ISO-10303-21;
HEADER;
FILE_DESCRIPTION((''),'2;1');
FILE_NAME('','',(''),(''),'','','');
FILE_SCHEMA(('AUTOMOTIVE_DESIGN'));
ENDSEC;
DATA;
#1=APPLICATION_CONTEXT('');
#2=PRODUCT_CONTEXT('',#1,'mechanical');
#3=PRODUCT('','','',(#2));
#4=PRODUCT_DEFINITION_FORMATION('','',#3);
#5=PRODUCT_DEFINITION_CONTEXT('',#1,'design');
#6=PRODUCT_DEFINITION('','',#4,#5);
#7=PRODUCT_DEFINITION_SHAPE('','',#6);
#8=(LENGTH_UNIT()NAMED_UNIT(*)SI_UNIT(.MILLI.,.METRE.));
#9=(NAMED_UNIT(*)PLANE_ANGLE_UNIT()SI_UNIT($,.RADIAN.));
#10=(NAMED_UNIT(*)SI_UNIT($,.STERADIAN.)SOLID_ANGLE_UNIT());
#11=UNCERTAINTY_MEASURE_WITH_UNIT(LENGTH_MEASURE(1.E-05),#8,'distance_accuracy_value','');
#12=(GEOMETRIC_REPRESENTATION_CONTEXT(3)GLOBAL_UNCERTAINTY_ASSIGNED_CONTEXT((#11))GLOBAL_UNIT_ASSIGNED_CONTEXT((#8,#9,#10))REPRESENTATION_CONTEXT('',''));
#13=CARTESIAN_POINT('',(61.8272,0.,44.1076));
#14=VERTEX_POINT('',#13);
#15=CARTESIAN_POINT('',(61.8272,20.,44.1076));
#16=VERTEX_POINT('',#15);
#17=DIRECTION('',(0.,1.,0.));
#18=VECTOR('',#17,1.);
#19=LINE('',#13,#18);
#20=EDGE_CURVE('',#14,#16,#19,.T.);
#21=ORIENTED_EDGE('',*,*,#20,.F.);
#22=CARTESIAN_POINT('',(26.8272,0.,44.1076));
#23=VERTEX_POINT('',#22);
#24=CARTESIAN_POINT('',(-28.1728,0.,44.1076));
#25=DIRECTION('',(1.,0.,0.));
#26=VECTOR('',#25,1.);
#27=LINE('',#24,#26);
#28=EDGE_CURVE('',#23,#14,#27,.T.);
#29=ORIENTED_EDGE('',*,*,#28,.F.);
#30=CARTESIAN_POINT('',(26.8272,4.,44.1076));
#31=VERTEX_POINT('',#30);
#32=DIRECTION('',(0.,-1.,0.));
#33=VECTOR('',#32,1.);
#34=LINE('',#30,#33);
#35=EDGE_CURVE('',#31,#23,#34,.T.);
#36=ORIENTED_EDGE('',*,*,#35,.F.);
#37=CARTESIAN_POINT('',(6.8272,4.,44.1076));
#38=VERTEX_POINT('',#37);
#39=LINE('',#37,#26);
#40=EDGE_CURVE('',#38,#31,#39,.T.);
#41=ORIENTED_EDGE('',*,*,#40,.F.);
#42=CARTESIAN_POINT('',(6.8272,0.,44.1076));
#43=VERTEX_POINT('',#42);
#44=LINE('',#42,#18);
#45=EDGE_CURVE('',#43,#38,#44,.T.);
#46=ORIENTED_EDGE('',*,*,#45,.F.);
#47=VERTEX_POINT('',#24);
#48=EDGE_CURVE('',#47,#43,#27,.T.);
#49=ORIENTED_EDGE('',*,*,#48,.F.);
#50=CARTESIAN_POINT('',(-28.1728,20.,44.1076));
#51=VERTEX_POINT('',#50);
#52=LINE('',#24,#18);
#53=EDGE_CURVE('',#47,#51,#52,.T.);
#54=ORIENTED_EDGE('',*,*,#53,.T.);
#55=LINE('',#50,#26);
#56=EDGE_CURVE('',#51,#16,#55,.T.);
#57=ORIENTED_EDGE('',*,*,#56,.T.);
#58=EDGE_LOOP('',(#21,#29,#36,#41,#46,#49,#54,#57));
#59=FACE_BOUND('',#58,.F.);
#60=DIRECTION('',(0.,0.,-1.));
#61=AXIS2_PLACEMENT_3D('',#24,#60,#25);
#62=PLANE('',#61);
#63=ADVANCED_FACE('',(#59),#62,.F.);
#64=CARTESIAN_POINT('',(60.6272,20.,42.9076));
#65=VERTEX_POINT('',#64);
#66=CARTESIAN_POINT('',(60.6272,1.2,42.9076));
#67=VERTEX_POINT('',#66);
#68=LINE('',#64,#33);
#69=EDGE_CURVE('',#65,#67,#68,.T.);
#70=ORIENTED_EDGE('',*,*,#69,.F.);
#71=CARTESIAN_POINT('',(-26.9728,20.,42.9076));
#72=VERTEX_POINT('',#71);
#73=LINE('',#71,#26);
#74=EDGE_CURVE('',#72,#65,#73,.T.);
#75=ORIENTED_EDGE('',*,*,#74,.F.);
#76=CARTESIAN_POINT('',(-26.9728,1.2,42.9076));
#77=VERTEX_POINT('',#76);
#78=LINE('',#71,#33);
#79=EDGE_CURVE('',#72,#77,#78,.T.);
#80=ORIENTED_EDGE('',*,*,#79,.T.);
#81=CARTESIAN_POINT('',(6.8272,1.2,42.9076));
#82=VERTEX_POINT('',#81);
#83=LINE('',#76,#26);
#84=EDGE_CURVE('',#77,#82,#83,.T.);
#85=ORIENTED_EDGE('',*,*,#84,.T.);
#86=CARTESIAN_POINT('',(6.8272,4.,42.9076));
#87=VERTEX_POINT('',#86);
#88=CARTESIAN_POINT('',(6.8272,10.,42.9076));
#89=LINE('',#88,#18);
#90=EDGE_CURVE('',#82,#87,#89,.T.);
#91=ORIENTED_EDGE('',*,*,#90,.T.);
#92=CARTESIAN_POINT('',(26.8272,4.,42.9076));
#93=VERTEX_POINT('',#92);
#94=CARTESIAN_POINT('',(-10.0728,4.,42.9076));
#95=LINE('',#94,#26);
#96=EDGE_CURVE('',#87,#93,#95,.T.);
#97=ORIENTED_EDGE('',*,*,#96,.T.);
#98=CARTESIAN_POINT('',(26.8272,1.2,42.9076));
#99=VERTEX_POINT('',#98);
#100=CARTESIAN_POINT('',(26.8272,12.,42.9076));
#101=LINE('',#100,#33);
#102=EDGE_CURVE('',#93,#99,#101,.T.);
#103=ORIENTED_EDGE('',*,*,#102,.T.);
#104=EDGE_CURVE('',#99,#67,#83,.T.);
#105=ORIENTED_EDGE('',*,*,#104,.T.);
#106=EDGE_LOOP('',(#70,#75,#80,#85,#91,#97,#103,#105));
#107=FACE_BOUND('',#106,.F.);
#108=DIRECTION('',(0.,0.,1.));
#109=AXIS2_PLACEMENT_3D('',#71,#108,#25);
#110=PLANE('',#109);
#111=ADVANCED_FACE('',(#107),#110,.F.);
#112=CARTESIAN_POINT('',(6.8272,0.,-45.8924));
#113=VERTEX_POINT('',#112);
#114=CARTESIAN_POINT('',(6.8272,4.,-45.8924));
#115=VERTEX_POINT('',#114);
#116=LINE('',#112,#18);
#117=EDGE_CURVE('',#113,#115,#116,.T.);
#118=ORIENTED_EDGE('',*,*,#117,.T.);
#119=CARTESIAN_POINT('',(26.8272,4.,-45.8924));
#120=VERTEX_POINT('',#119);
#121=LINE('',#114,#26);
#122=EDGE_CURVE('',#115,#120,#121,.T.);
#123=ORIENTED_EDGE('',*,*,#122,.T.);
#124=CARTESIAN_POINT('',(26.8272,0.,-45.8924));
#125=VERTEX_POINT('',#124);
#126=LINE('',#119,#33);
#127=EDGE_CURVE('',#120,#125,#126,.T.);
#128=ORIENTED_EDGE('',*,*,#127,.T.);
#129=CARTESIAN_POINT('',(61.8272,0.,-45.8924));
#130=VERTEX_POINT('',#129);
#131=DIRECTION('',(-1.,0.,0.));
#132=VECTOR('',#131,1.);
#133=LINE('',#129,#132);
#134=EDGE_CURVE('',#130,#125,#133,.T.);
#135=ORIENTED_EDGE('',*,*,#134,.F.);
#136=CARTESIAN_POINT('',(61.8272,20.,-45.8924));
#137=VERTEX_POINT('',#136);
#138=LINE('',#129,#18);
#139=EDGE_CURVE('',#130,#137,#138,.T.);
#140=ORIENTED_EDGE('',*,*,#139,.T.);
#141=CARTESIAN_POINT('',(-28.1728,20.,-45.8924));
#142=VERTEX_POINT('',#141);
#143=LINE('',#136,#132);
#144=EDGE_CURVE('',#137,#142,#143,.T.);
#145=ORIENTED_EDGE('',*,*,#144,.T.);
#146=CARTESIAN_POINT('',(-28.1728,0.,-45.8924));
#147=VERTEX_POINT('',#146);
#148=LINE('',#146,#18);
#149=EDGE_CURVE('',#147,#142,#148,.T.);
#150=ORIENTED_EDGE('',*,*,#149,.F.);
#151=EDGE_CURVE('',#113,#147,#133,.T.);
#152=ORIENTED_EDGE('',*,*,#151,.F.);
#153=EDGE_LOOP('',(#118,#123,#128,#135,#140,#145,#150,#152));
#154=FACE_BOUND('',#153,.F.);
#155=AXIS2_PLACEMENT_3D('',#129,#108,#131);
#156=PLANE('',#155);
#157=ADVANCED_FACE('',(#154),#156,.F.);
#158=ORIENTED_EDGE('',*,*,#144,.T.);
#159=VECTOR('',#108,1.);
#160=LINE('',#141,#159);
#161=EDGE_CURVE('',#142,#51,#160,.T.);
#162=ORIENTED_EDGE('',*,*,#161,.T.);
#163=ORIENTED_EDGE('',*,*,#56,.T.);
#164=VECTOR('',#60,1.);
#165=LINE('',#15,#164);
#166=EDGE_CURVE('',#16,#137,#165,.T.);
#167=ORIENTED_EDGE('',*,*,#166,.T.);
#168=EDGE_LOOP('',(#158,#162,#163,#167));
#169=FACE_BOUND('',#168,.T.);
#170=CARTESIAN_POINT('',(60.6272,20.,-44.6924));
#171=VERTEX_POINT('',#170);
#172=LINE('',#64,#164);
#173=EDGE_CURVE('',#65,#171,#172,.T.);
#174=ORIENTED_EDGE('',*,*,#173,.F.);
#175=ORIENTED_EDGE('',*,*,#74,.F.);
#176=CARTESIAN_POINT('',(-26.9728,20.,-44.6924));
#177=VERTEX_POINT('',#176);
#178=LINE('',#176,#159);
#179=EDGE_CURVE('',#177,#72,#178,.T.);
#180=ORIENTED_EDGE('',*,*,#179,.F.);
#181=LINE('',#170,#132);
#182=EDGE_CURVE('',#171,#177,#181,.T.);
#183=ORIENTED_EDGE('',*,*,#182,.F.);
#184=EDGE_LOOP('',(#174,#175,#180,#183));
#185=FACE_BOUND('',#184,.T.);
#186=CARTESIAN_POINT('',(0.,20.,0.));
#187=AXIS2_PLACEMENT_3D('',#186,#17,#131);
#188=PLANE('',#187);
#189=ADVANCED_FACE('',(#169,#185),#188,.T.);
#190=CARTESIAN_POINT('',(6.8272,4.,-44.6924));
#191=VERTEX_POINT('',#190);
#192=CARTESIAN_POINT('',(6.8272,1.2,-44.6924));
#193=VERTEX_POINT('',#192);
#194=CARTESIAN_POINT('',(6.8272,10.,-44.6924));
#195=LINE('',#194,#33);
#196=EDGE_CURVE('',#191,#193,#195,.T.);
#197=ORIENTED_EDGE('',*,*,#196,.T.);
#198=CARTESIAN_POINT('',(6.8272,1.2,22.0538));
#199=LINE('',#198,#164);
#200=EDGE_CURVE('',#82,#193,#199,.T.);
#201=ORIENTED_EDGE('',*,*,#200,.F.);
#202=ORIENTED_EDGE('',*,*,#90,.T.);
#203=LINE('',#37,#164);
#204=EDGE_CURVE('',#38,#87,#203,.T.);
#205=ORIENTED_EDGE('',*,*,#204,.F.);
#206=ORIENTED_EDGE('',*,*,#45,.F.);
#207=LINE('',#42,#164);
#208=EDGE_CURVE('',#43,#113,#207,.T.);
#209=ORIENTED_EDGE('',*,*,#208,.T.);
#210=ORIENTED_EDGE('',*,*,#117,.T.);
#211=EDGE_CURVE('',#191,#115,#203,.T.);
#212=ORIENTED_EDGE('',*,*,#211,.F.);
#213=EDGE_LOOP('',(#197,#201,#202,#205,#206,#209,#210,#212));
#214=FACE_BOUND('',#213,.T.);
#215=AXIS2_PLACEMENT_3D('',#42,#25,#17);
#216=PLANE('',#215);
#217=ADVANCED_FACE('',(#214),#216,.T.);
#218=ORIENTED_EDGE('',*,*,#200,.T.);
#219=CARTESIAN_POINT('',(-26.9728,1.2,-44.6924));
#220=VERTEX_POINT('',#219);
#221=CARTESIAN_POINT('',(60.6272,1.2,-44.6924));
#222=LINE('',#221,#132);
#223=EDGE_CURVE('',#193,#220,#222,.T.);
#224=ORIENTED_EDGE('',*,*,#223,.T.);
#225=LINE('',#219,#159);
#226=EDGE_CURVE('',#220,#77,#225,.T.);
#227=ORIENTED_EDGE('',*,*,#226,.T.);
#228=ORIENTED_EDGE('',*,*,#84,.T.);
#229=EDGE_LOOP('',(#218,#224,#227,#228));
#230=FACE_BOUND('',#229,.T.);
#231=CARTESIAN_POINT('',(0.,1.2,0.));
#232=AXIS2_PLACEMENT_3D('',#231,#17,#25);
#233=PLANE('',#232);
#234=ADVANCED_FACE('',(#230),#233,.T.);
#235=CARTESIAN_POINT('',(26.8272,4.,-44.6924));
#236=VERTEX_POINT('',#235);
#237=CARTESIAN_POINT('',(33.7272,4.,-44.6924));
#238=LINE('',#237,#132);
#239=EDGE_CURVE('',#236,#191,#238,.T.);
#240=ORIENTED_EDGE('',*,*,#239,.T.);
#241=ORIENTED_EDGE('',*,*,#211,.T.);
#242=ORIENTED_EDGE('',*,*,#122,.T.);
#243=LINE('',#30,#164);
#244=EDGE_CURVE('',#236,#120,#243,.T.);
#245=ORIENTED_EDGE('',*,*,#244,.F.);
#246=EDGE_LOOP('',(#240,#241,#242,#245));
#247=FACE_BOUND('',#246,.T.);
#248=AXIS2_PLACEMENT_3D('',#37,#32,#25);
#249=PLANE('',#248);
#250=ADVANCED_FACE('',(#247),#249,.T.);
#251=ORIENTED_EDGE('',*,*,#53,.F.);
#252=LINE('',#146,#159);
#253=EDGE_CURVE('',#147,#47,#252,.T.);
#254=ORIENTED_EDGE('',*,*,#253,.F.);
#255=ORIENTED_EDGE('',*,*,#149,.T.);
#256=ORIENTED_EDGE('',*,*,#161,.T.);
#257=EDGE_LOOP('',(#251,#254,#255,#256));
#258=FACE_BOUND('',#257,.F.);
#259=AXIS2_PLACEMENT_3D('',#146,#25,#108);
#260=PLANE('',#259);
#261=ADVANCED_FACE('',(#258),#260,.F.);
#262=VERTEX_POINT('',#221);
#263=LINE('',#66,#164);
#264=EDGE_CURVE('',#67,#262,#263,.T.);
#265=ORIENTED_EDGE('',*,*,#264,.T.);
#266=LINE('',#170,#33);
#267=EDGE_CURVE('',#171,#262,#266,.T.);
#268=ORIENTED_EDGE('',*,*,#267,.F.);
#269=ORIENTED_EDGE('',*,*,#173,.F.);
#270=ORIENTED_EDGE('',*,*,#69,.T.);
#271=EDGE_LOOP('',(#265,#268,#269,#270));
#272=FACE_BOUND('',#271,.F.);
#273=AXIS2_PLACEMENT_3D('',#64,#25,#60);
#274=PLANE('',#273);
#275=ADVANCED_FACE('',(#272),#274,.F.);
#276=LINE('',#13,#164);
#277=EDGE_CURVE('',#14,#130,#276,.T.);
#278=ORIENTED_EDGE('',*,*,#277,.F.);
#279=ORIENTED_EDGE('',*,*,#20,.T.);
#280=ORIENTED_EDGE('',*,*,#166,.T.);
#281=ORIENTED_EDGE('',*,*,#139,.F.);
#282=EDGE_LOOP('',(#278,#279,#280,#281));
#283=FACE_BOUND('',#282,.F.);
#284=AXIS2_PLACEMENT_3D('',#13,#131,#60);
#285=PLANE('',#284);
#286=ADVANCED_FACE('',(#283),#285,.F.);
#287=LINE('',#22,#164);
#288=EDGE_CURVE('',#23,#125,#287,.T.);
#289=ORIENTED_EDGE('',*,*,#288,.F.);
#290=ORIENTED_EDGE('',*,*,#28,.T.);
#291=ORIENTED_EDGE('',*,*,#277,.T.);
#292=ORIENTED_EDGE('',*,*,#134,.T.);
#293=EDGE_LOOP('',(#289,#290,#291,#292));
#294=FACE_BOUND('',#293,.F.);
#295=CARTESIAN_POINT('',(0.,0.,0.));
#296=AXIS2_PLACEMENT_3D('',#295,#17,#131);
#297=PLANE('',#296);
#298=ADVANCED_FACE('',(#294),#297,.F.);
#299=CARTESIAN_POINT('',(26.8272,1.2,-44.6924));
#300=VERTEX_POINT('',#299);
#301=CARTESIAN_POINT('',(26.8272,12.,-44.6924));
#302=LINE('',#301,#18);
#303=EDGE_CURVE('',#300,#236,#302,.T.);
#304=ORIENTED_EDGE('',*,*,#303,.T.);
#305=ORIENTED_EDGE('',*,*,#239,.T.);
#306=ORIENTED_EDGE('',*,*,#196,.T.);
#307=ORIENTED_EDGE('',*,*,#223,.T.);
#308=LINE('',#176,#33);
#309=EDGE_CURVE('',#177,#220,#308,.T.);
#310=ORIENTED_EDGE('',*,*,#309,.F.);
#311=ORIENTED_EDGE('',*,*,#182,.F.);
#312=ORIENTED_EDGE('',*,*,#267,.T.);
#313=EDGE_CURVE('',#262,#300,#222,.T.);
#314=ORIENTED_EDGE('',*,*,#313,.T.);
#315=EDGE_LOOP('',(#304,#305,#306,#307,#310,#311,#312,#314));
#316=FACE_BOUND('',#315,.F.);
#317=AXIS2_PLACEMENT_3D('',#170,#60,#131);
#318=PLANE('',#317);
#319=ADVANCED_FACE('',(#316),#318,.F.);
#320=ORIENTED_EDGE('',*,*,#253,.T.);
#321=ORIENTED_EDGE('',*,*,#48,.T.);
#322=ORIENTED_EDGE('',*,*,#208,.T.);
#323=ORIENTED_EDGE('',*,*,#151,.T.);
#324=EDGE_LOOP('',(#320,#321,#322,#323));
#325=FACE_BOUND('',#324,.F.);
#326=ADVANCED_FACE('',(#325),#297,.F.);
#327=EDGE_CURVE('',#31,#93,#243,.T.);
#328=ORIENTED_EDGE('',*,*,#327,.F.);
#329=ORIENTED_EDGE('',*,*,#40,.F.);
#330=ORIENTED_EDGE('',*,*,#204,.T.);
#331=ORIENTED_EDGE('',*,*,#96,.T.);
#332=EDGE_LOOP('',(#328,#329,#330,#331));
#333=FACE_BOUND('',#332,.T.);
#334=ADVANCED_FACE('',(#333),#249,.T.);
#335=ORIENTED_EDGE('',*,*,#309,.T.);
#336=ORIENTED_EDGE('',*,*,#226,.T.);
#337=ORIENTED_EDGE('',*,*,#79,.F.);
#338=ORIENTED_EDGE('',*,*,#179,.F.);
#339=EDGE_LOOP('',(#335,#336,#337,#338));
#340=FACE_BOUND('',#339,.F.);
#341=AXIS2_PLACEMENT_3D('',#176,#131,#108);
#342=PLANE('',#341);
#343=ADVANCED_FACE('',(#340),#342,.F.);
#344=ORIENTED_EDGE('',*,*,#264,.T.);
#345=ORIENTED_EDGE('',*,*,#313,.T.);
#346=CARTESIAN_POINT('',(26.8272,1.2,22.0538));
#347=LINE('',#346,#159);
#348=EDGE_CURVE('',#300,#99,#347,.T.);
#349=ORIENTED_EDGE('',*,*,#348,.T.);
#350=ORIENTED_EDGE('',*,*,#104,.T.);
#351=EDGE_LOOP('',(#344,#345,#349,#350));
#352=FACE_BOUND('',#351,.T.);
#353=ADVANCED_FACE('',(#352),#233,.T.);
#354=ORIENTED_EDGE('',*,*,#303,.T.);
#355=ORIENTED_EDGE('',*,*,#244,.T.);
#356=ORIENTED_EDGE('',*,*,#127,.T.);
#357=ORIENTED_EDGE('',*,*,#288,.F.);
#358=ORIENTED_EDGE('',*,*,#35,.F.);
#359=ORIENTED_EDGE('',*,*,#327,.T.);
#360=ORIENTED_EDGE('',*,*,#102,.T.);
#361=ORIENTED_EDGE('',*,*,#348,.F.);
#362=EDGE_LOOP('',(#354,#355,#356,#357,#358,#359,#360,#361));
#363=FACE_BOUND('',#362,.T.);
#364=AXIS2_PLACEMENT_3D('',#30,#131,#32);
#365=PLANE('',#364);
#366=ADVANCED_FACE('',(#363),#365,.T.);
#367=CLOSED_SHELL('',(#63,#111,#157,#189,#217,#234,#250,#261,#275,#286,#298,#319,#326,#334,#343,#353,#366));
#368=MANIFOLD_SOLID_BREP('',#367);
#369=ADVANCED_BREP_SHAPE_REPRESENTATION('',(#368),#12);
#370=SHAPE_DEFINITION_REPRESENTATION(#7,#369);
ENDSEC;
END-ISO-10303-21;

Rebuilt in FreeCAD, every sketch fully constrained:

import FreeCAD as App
import Part
import Sketcher
from FreeCAD import Vector


def add_polygon(sketch, points):
    """Adds a closed chain of lines whose ends are joined by coincident constraints."""
    first, n = sketch.GeometryCount, len(points)
    for a, b in zip(points, points[1:] + points[:1]):
        sketch.addGeometry(Part.LineSegment(App.Vector(*a, 0), App.Vector(*b, 0)), False)
    for i in range(n):
        sketch.addConstraint(Sketcher.Constraint("Coincident", first + i, 2, first + (i + 1) % n, 1))

doc = App.newDocument("Part")
body = doc.addObject("PartDesign::Body", "Body")

# Sketch on XZ plane
sketch1 = doc.addObject("Sketcher::SketchObject", "Sketch")
body.addObject(sketch1)
sketch1.AttachmentSupport = (doc.XZ_Plane, [""])
sketch1.MapMode = "FlatFace"
add_polygon(sketch1, [(-28, -46), (-28, 44), (62, 44), (62, -46)])  # lines 0-3
sketch1.addConstraint(Sketcher.Constraint("Vertical", 0))
sketch1.addConstraint(Sketcher.Constraint("Horizontal", 1))
sketch1.addConstraint(Sketcher.Constraint("Vertical", 2))
sketch1.addConstraint(Sketcher.Constraint("Horizontal", 3))
sketch1.addConstraint(Sketcher.Constraint("Equal", 3, 0))
sketch1.addConstraint(Sketcher.Constraint("DistanceX", 1, 1, 1, 2, 90.0))
sketch1.addConstraint(Sketcher.Constraint("DistanceX", 0, 2, -1, 1, 28.1728))
sketch1.addConstraint(Sketcher.Constraint("DistanceY", -1, 1, 0, 2, 44.1076))
pad1 = doc.addObject("PartDesign::Pad", "Pad")
body.addObject(pad1)
pad1.Profile = sketch1
pad1.Length = 20
pad1.Reversed = True

# Sketch on XZ plane
sketch2 = doc.addObject("Sketcher::SketchObject", "Sketch001")
body.addObject(sketch2)
sketch2.AttachmentSupport = (doc.XZ_Plane, [""])
sketch2.MapMode = "FlatFace"
sketch2.AttachmentOffset = App.Placement(Vector(0, 0, -20), App.Rotation())
add_polygon(sketch2, [(-27, -45), (-27, 43), (61, 43), (61, -45)])  # lines 0-3
sketch2.addConstraint(Sketcher.Constraint("Vertical", 0))
sketch2.addConstraint(Sketcher.Constraint("Horizontal", 1))
sketch2.addConstraint(Sketcher.Constraint("Vertical", 2))
sketch2.addConstraint(Sketcher.Constraint("Horizontal", 3))
sketch2.addConstraint(Sketcher.Constraint("Equal", 3, 0))
sketch2.addConstraint(Sketcher.Constraint("DistanceX", 1, 1, 1, 2, 87.6))
sketch2.addConstraint(Sketcher.Constraint("DistanceX", 0, 2, -1, 1, 26.9728))
sketch2.addConstraint(Sketcher.Constraint("DistanceY", -1, 1, 0, 2, 42.9076))
pocket1 = doc.addObject("PartDesign::Pocket", "Pocket")
body.addObject(pocket1)
pocket1.Profile = sketch2
pocket1.Length = 18.8
pocket1.Reversed = True

# Sketch on XY plane
sketch3 = doc.addObject("Sketcher::SketchObject", "Sketch002")
body.addObject(sketch3)
sketch3.AttachmentSupport = (doc.XY_Plane, [""])
sketch3.MapMode = "FlatFace"
sketch3.AttachmentOffset = App.Placement(Vector(0, 0, 44.1076), App.Rotation())
add_polygon(sketch3, [(26.8, 4), (6.8, 4), (6.8, 0), (26.8, 0)])  # lines 0-3
sketch3.addConstraint(Sketcher.Constraint("Horizontal", 0))
sketch3.addConstraint(Sketcher.Constraint("Vertical", 1))
sketch3.addConstraint(Sketcher.Constraint("Horizontal", 2))
sketch3.addConstraint(Sketcher.Constraint("Vertical", 3))
sketch3.addConstraint(Sketcher.Constraint("PointOnObject", 1, 2, -1))
sketch3.addConstraint(Sketcher.Constraint("DistanceX", 0, 2, 0, 1, 20.0))
sketch3.addConstraint(Sketcher.Constraint("DistanceY", 1, 2, 1, 1, 4.0))
sketch3.addConstraint(Sketcher.Constraint("DistanceX", -1, 1, 0, 2, 6.8272))
pocket2 = doc.addObject("PartDesign::Pocket", "Pocket001")
body.addObject(pocket2)
pocket2.Profile = sketch3
pocket2.Length = 90

doc.recompute()
